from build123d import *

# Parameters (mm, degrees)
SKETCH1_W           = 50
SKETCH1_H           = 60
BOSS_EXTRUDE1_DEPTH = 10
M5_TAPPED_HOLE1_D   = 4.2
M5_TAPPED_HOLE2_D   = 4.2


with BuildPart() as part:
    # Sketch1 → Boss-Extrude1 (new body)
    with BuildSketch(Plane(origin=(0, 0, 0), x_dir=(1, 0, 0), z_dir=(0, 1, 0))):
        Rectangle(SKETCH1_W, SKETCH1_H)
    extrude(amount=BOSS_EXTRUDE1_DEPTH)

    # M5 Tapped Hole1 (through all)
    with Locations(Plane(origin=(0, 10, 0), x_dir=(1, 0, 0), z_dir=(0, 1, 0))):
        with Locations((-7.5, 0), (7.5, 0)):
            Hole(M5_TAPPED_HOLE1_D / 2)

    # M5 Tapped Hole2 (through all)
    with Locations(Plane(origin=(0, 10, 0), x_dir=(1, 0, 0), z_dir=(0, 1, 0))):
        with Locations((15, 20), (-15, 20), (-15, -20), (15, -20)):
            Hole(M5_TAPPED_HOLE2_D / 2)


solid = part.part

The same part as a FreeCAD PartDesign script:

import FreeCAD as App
import Part
import Sketcher


def add_polygon(sketch, points):
    """Adds a closed chain of lines whose ends are joined by coincident constraints."""
    first, n = sketch.GeometryCount, len(points)
    for a, b in zip(points, points[1:] + points[:1]):
        sketch.addGeometry(Part.LineSegment(App.Vector(*a, 0), App.Vector(*b, 0)), False)
    for i in range(n):
        sketch.addConstraint(Sketcher.Constraint("Coincident", first + i, 2, first + (i + 1) % n, 1))

doc = App.newDocument("Part")
body = doc.addObject("PartDesign::Body", "Body")

# Sketch on XZ plane
sketch1 = body.newObject("Sketcher::SketchObject", "Sketch")
sketch1.AttachmentSupport = (doc.getObject("XZ_Plane"), [""])
sketch1.MapMode = "FlatFace"
add_polygon(sketch1, [(-25, -30), (-25, 30), (25, 30), (25, -30)])  # lines 0-3
sketch1.addConstraint(Sketcher.Constraint("Vertical", 0))
sketch1.addConstraint(Sketcher.Constraint("Horizontal", 1))
sketch1.addConstraint(Sketcher.Constraint("Vertical", 2))
sketch1.addConstraint(Sketcher.Constraint("Horizontal", 3))
sketch1.addConstraint(Sketcher.Constraint("Symmetric", 0, 2, 2, 2, -1, 1))
sketch1.addConstraint(Sketcher.Constraint("DistanceX", 1, 1, 1, 2, 50.0))
sketch1.addConstraint(Sketcher.Constraint("DistanceY", 0, 1, 0, 2, 60.0))
pad1 = body.newObject("PartDesign::Pad", "Pad")
pad1.Profile = sketch1
pad1.Length = 10
pad1.Reversed = True

# Sketch on XZ plane
sketch2 = body.newObject("Sketcher::SketchObject", "Sketch001")
sketch2.AttachmentSupport = (doc.getObject("XZ_Plane"), [""])
sketch2.MapMode = "FlatFace"
sketch2.AttachmentOffset = App.Placement(App.Vector(0, 0, -10), App.Rotation())
sketch2.addGeometry(Part.Circle(App.Vector(-7.5, 0, 0), App.Vector(0, 0, 1), 2.1), False)
sketch2.addGeometry(Part.Circle(App.Vector(7.5, 0, 0), App.Vector(0, 0, 1), 2.1), False)
sketch2.addConstraint(Sketcher.Constraint("Equal", 0, 1))
sketch2.addConstraint(Sketcher.Constraint("Symmetric", 0, 3, 1, 3, -1, 1))
sketch2.addConstraint(Sketcher.Constraint("PointOnObject", 0, 3, -1))
sketch2.addConstraint(Sketcher.Constraint("Diameter", 0, 4.2))
sketch2.addConstraint(Sketcher.Constraint("DistanceX", 0, 3, 1, 3, 15.0))
doc.recompute()
hole = body.newObject("PartDesign::Hole", "Hole")
hole.Profile = sketch2
hole.ThreadType = "None"
hole.Diameter = 4.2
hole.DepthType = "ThroughAll"
hole.Reversed = True

# Sketch on XZ plane
sketch3 = body.newObject("Sketcher::SketchObject", "Sketch002")
sketch3.AttachmentSupport = (doc.getObject("XZ_Plane"), [""])
sketch3.MapMode = "FlatFace"
sketch3.AttachmentOffset = App.Placement(App.Vector(0, 0, -10), App.Rotation())
sketch3.addGeometry(Part.Circle(App.Vector(15, -20, 0), App.Vector(0, 0, 1), 2.1), False)
sketch3.addGeometry(Part.Circle(App.Vector(-15, -20, 0), App.Vector(0, 0, 1), 2.1), False)
sketch3.addGeometry(Part.Circle(App.Vector(-15, 20, 0), App.Vector(0, 0, 1), 2.1), False)
sketch3.addGeometry(Part.Circle(App.Vector(15, 20, 0), App.Vector(0, 0, 1), 2.1), False)
sketch3.addConstraint(Sketcher.Constraint("Equal", 0, 1))
sketch3.addConstraint(Sketcher.Constraint("Equal", 1, 2))
sketch3.addConstraint(Sketcher.Constraint("Equal", 2, 3))
sketch3.addConstraint(Sketcher.Constraint("Symmetric", 0, 3, 2, 3, -1, 1))
sketch3.addConstraint(Sketcher.Constraint("Symmetric", 1, 3, 3, 3, -1, 1))
sketch3.addConstraint(Sketcher.Constraint("Symmetric", 0, 3, 1, 3, -2))
sketch3.addConstraint(Sketcher.Constraint("Diameter", 0, 4.2))
sketch3.addConstraint(Sketcher.Constraint("DistanceX", -1, 1, 0, 3, 15.0))
sketch3.addConstraint(Sketcher.Constraint("DistanceY", 0, 3, -1, 1, 20.0))
doc.recompute()
hole2 = body.newObject("PartDesign::Hole", "Hole001")
hole2.Profile = sketch3
hole2.ThreadType = "None"
hole2.Diameter = 4.2
hole2.DepthType = "ThroughAll"
hole2.Reversed = True

doc.recompute()
